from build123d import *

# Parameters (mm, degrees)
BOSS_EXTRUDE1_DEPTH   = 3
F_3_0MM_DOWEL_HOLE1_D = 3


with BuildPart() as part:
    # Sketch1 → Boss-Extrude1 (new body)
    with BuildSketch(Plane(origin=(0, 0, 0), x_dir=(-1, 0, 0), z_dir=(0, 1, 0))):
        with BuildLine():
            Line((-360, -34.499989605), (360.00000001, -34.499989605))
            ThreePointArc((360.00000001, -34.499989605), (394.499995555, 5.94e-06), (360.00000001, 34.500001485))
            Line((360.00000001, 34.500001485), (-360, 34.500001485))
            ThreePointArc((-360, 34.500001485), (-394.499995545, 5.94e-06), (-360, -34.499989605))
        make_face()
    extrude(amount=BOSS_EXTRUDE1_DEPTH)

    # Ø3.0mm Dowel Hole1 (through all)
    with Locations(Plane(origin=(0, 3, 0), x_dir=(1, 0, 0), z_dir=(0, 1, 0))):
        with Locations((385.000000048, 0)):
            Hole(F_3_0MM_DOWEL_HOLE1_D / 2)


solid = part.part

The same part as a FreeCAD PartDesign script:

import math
import FreeCAD as App
import Part
import Sketcher

V = App.Vector

doc = App.newDocument("Part")
body = doc.addObject("PartDesign::Body", "Body")

# Sketch on XZ plane
sketch1 = doc.addObject("Sketcher::SketchObject", "Sketch")
body.addObject(sketch1)
sketch1.AttachmentSupport = (doc.XZ_Plane, [""])
sketch1.MapMode = "FlatFace"
sketch1.addGeometry(Part.LineSegment(V(360, -34, 0), V(-360, -34, 0)), False)
sketch1.addGeometry(Part.ArcOfCircle(Part.Circle(V(-360, 0, 0), V(0, 0, 1), 34), math.radians(90), math.radians(270)), False)
sketch1.addGeometry(Part.LineSegment(V(-360, 35, 0), V(360, 35, 0)), False)
sketch1.addGeometry(Part.ArcOfCircle(Part.Circle(V(360, 0, 0), V(0, 0, 1), 34), math.radians(-90), math.radians(90)), False)
sketch1.addConstraint(Sketcher.Constraint("Tangent", 0, 2, 1, 2))
sketch1.addConstraint(Sketcher.Constraint("Tangent", 1, 1, 2, 1))
sketch1.addConstraint(Sketcher.Constraint("Tangent", 2, 2, 3, 2))
sketch1.addConstraint(Sketcher.Constraint("Tangent", 3, 1, 0, 1))
sketch1.addConstraint(Sketcher.Constraint("Horizontal", 0))
sketch1.addConstraint(Sketcher.Constraint("Horizontal", 2))
sketch1.addConstraint(Sketcher.Constraint("DistanceX", 0, 2, 0, 1, 720.0))
sketch1.addConstraint(Sketcher.Constraint("DistanceX", 1, 3, -1, 1, 360.0))
sketch1.addConstraint(Sketcher.Constraint("DistanceY", -1, 1, 1, 1, 34.500001))
sketch1.addConstraint(Sketcher.Constraint("Radius", 1, 34.499996))
pad1 = doc.addObject("PartDesign::Pad", "Pad")
body.addObject(pad1)
pad1.Profile = sketch1
pad1.Length = 3
pad1.Reversed = True

# Sketch on XZ plane
sketch2 = doc.addObject("Sketcher::SketchObject", "Sketch001")
body.addObject(sketch2)
sketch2.AttachmentSupport = (doc.XZ_Plane, [""])
sketch2.MapMode = "FlatFace"
sketch2.AttachmentOffset = App.Placement(V(0, 0, -3), App.Rotation())
sketch2.addGeometry(Part.Circle(V(385, 0, 0), V(0, 0, 1), 1.5), False)
sketch2.addConstraint(Sketcher.Constraint("PointOnObject", 0, 3, -1))
sketch2.addConstraint(Sketcher.Constraint("Diameter", 0, 3.0))
sketch2.addConstraint(Sketcher.Constraint("DistanceX", -1, 1, 0, 3, 385.0))
doc.recompute()
hole = doc.addObject("PartDesign::Hole", "Hole")
body.addObject(hole)
hole.Profile = sketch2
hole.ThreadType = "None"
hole.Diameter = 3
hole.DepthType = "ThroughAll"
hole.Reversed = True

doc.recompute()
